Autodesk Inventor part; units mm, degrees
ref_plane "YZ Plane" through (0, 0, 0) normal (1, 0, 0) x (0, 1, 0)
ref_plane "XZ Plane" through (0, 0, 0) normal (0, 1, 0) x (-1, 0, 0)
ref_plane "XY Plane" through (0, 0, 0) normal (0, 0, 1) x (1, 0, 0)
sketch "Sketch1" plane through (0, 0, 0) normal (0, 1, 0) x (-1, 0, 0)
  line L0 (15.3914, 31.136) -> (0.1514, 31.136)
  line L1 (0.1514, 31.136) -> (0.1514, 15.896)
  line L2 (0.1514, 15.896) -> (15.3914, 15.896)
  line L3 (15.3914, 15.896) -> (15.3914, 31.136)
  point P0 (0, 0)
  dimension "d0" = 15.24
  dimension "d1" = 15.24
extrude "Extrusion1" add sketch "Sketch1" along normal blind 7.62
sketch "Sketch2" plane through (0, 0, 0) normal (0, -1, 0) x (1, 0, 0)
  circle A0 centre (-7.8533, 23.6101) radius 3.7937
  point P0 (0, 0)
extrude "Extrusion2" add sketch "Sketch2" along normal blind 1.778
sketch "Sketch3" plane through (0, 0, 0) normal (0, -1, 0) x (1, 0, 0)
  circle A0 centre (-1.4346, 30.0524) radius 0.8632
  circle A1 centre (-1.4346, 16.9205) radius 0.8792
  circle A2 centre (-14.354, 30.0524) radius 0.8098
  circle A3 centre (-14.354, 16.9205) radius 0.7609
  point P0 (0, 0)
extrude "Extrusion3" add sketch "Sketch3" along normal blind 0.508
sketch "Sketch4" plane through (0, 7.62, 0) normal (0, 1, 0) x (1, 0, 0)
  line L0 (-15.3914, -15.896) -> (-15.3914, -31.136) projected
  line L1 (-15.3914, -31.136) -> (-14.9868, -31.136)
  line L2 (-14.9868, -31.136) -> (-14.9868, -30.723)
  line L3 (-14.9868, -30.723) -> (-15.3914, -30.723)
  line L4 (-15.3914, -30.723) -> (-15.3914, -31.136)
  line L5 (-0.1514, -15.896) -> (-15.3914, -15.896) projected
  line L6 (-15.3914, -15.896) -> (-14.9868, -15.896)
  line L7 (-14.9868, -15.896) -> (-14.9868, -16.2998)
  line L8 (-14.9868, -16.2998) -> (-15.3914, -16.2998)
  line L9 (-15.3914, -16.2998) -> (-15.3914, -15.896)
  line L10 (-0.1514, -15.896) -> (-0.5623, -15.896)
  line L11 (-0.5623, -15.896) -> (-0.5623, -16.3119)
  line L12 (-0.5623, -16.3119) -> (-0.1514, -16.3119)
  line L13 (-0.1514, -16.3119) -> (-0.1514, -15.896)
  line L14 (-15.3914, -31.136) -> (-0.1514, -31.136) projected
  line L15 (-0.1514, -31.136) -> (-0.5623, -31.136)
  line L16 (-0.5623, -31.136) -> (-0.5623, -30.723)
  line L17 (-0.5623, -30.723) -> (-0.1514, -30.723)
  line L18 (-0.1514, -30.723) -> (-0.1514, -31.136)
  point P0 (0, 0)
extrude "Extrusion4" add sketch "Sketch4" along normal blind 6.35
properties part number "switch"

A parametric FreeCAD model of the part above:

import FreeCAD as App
import Part
import Sketcher
from FreeCAD import Vector
Q = App.Units.Quantity

doc = App.newDocument("Part")
body = doc.addObject("PartDesign::Body", "Body")

# Sketch on XZ plane
sketch1 = body.newObject("Sketcher::SketchObject", "Sketch")
sketch1.AttachmentSupport = (doc.getObject("XZ_Plane"), [""])
sketch1.MapMode = "FlatFace"
sketch1.addGeometry(Part.LineSegment(Vector(-15, 16, 0), Vector(-15, 31, 0)), False)
sketch1.addGeometry(Part.LineSegment(Vector(-15, 31, 0), Vector(0, 31, 0)), False)
sketch1.addGeometry(Part.LineSegment(Vector(0, 31, 0), Vector(0, 16, 0)), False)
sketch1.addGeometry(Part.LineSegment(Vector(0, 16, 0), Vector(-15, 16, 0)), False)
sketch1.addConstraint(Sketcher.Constraint("Coincident", 0, 2, 1, 1))
sketch1.addConstraint(Sketcher.Constraint("Coincident", 1, 2, 2, 1))
sketch1.addConstraint(Sketcher.Constraint("Coincident", 2, 2, 3, 1))
sketch1.addConstraint(Sketcher.Constraint("Coincident", 3, 2, 0, 1))
sketch1.addConstraint(Sketcher.Constraint("Vertical", 0))
sketch1.addConstraint(Sketcher.Constraint("Horizontal", 1))
sketch1.addConstraint(Sketcher.Constraint("Vertical", 2))
sketch1.addConstraint(Sketcher.Constraint("Horizontal", 3))
sketch1.addConstraint(Sketcher.Constraint("Equal", 3, 0))
sketch1.addConstraint(Sketcher.Constraint("DistanceX", 1, 1, 1, 2, Q("0.6 in")))
sketch1.addConstraint(Sketcher.Constraint("DistanceX", 0, 2, -1, 1, Q("15.3914 mm")))
sketch1.addConstraint(Sketcher.Constraint("DistanceY", -1, 1, 0, 2, Q("31.136 mm")))
pad1 = body.newObject("PartDesign::Pad", "Pad")
pad1.Profile = sketch1
pad1.Length = Q("0.3 in")
pad1.Reversed = True

# Sketch on XZ plane
sketch2 = body.newObject("Sketcher::SketchObject", "Sketch001")
sketch2.AttachmentSupport = (doc.getObject("XZ_Plane"), [""])
sketch2.MapMode = "FlatFace"
sketch2.addGeometry(Part.Circle(Vector(-7.9, 23.6, 0), Vector(0, 0, 1), 3.8), False)
sketch2.addConstraint(Sketcher.Constraint("Diameter", 0, Q("7.5874 mm")))
sketch2.addConstraint(Sketcher.Constraint("DistanceX", 0, 3, -1, 1, Q("7.8533 mm")))
sketch2.addConstraint(Sketcher.Constraint("DistanceY", -1, 1, 0, 3, Q("23.61 mm")))
pad2 = body.newObject("PartDesign::Pad", "Pad001")
pad2.Profile = sketch2
pad2.Length = Q("0.07 in")

# Sketch on XZ plane
sketch3 = body.newObject("Sketcher::SketchObject", "Sketch002")
sketch3.AttachmentSupport = (doc.getObject("XZ_Plane"), [""])
sketch3.MapMode = "FlatFace"
sketch3.addGeometry(Part.Circle(Vector(-1.4, 30.1, 0), Vector(0, 0, 1), 0.9), False)
sketch3.addGeometry(Part.Circle(Vector(-1.4, 16.9, 0), Vector(0, 0, 1), 0.9), False)
sketch3.addGeometry(Part.Circle(Vector(-14.4, 30.1, 0), Vector(0, 0, 1), 0.8), False)
sketch3.addGeometry(Part.Circle(Vector(-14.4, 16.9, 0), Vector(0, 0, 1), 0.8), False)
sketch3.addConstraint(Sketcher.Constraint("Horizontal", 0, 3, 2, 3))
sketch3.addConstraint(Sketcher.Constraint("Horizontal", 1, 3, 3, 3))
sketch3.addConstraint(Sketcher.Constraint("Vertical", 0, 3, 1, 3))
sketch3.addConstraint(Sketcher.Constraint("Vertical", 2, 3, 3, 3))
sketch3.addConstraint(Sketcher.Constraint("Diameter", 0, Q("1.7264 mm")))
sketch3.addConstraint(Sketcher.Constraint("Diameter", 1, Q("1.7584 mm")))
sketch3.addConstraint(Sketcher.Constraint("Diameter", 2, Q("1.6196 mm")))
sketch3.addConstraint(Sketcher.Constraint("Diameter", 3, Q("1.5218 mm")))
sketch3.addConstraint(Sketcher.Constraint("DistanceY", 1, 3, 0, 3, Q("0.517 in")))
sketch3.addConstraint(Sketcher.Constraint("DistanceX", 0, 3, -1, 1, Q("1.4346 mm")))
sketch3.addConstraint(Sketcher.Constraint("DistanceY", -1, 1, 0, 3, Q("30.0524 mm")))
sketch3.addConstraint(Sketcher.Constraint("DistanceX", 2, 3, -1, 1, Q("14.354 mm")))
pad3 = body.newObject("PartDesign::Pad", "Pad002")
pad3.Profile = sketch3
pad3.Length = Q("0.02 in")

# Sketch on XZ plane
sketch4 = body.newObject("Sketcher::SketchObject", "Sketch003")
sketch4.AttachmentSupport = (doc.getObject("XZ_Plane"), [""])
sketch4.MapMode = "FlatFace"
sketch4.AttachmentOffset = App.Placement(Vector(0, 0, -0.3 * 25.4), App.Rotation())
sketch4.addGeometry(Part.LineSegment(Vector(-14.99, 15.9, 0), Vector(-15.39, 15.9, 0)), False)
sketch4.addGeometry(Part.LineSegment(Vector(-15.39, 15.9, 0), Vector(-15.39, 16.3, 0)), False)
sketch4.addGeometry(Part.LineSegment(Vector(-15.39, 16.3, 0), Vector(-14.99, 16.3, 0)), False)
sketch4.addGeometry(Part.LineSegment(Vector(-14.99, 16.3, 0), Vector(-14.99, 15.9, 0)), False)
sketch4.addGeometry(Part.LineSegment(Vector(-0.15, 15.9, 0), Vector(-0.56, 15.9, 0)), False)
sketch4.addGeometry(Part.LineSegment(Vector(-0.56, 15.9, 0), Vector(-0.56, 16.31, 0)), False)
sketch4.addGeometry(Part.LineSegment(Vector(-0.56, 16.31, 0), Vector(-0.15, 16.31, 0)), False)
sketch4.addGeometry(Part.LineSegment(Vector(-0.15, 16.31, 0), Vector(-0.15, 15.9, 0)), False)
sketch4.addGeometry(Part.LineSegment(Vector(-0.56, 30.72, 0), Vector(-0.56, 31.14, 0)), False)
sketch4.addGeometry(Part.LineSegment(Vector(-0.56, 31.14, 0), Vector(-0.15, 31.14, 0)), False)
sketch4.addGeometry(Part.LineSegment(Vector(-0.15, 31.14, 0), Vector(-0.15, 30.72, 0)), False)
sketch4.addGeometry(Part.LineSegment(Vector(-0.15, 30.72, 0), Vector(-0.56, 30.72, 0)), False)
sketch4.addGeometry(Part.LineSegment(Vector(-14.99, 30.72, 0), Vector(-15.39, 30.72, 0)), False)
sketch4.addGeometry(Part.LineSegment(Vector(-15.39, 30.72, 0), Vector(-15.39, 31.14, 0)), False)
sketch4.addGeometry(Part.LineSegment(Vector(-15.39, 31.14, 0), Vector(-14.99, 31.14, 0)), False)
sketch4.addGeometry(Part.LineSegment(Vector(-14.99, 31.14, 0), Vector(-14.99, 30.72, 0)), False)
sketch4.addConstraint(Sketcher.Constraint("Coincident", 0, 2, 1, 1))
sketch4.addConstraint(Sketcher.Constraint("Coincident", 1, 2, 2, 1))
sketch4.addConstraint(Sketcher.Constraint("Coincident", 2, 2, 3, 1))
sketch4.addConstraint(Sketcher.Constraint("Coincident", 3, 2, 0, 1))
sketch4.addConstraint(Sketcher.Constraint("Coincident", 4, 2, 5, 1))
sketch4.addConstraint(Sketcher.Constraint("Coincident", 5, 2, 6, 1))
sketch4.addConstraint(Sketcher.Constraint("Coincident", 6, 2, 7, 1))
sketch4.addConstraint(Sketcher.Constraint("Coincident", 7, 2, 4, 1))
sketch4.addConstraint(Sketcher.Constraint("Coincident", 8, 2, 9, 1))
sketch4.addConstraint(Sketcher.Constraint("Coincident", 9, 2, 10, 1))
sketch4.addConstraint(Sketcher.Constraint("Coincident", 10, 2, 11, 1))
sketch4.addConstraint(Sketcher.Constraint("Coincident", 11, 2, 8, 1))
sketch4.addConstraint(Sketcher.Constraint("Coincident", 12, 2, 13, 1))
sketch4.addConstraint(Sketcher.Constraint("Coincident", 13, 2, 14, 1))
sketch4.addConstraint(Sketcher.Constraint("Coincident", 14, 2, 15, 1))
sketch4.addConstraint(Sketcher.Constraint("Coincident", 15, 2, 12, 1))
sketch4.addConstraint(Sketcher.Constraint("Horizontal", 0))
sketch4.addConstraint(Sketcher.Constraint("Vertical", 1))
sketch4.addConstraint(Sketcher.Constraint("Horizontal", 2))
sketch4.addConstraint(Sketcher.Constraint("Vertical", 3))
sketch4.addConstraint(Sketcher.Constraint("Horizontal", 4))
sketch4.addConstraint(Sketcher.Constraint("Vertical", 5))
sketch4.addConstraint(Sketcher.Constraint("Horizontal", 6))
sketch4.addConstraint(Sketcher.Constraint("Vertical", 7))
sketch4.addConstraint(Sketcher.Constraint("Vertical", 8))
sketch4.addConstraint(Sketcher.Constraint("Horizontal", 9))
sketch4.addConstraint(Sketcher.Constraint("Vertical", 10))
sketch4.addConstraint(Sketcher.Constraint("Horizontal", 11))
sketch4.addConstraint(Sketcher.Constraint("Horizontal", 12))
sketch4.addConstraint(Sketcher.Constraint("Vertical", 13))
sketch4.addConstraint(Sketcher.Constraint("Horizontal", 14))
sketch4.addConstraint(Sketcher.Constraint("Vertical", 15))
sketch4.addConstraint(Sketcher.Constraint("Horizontal", 3, 2, 4, 2))
sketch4.addConstraint(Sketcher.Constraint("Horizontal", 11, 2, 12, 2))
sketch4.addConstraint(Sketcher.Constraint("Horizontal", 9, 2, 13, 2))
sketch4.addConstraint(Sketcher.Constraint("Vertical", 5, 2, 8, 2))
sketch4.addConstraint(Sketcher.Constraint("Vertical", 7, 2, 9, 2))
sketch4.addConstraint(Sketcher.Constraint("Vertical", 1, 2, 12, 2))
sketch4.addConstraint(Sketcher.Constraint("Vertical", 3, 2, 14, 2))
sketch4.addConstraint(Sketcher.Constraint("DistanceX", 1, 2, 6, 2, Q("0.6 in")))
sketch4.addConstraint(Sketcher.Constraint("DistanceY", 4, 2, 8, 2, Q("0.6 in")))
sketch4.addConstraint(Sketcher.Constraint("DistanceY", 1, 1, 1, 2, Q("0.0159 in")))
sketch4.addConstraint(Sketcher.Constraint("DistanceX", 0, 2, 0, 1, Q("0.4046 mm")))
sketch4.addConstraint(Sketcher.Constraint("DistanceX", 4, 2, 4, 1, Q("0.411 mm")))
sketch4.addConstraint(Sketcher.Constraint("DistanceY", 5, 1, 5, 2, Q("0.416 mm")))
sketch4.addConstraint(Sketcher.Constraint("DistanceY", 8, 1, 8, 2, Q("0.413 mm")))
sketch4.addConstraint(Sketcher.Constraint("DistanceY", -1, 1, 5, 2, Q("0.6422 in")))
sketch4.addConstraint(Sketcher.Constraint("DistanceX", 0, 2, -1, 1, Q("15.3914 mm")))
pad4 = body.newObject("PartDesign::Pad", "Pad003")
pad4.Profile = sketch4
pad4.Length = Q("0.25 in")
pad4.Reversed = True

doc.recompute()
